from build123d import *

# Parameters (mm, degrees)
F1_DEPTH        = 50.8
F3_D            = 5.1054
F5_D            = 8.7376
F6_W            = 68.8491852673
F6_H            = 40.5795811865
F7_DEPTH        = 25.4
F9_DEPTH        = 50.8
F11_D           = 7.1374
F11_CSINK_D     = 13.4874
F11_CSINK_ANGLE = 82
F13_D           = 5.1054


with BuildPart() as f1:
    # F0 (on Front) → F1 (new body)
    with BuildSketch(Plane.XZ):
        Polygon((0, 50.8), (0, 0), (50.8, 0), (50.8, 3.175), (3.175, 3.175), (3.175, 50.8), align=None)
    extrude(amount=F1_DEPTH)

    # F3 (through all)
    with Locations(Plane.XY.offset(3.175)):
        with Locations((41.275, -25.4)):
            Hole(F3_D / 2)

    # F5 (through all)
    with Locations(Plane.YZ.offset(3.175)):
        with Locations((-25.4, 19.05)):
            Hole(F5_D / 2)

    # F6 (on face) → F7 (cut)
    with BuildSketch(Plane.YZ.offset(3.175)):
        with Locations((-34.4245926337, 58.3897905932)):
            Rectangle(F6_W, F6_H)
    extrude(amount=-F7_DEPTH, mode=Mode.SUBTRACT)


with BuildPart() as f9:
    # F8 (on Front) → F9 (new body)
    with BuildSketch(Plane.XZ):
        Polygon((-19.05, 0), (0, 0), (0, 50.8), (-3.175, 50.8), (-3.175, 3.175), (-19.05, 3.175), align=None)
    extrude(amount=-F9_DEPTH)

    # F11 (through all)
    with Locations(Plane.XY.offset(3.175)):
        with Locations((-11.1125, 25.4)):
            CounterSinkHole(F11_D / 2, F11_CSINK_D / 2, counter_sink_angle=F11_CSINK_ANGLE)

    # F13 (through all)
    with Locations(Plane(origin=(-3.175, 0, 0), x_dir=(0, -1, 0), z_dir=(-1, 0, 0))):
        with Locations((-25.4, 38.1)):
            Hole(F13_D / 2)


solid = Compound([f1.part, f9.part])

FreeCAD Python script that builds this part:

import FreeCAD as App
import Part
import Sketcher
Q = App.Units.Quantity

doc = App.newDocument("Part")
body = doc.addObject("PartDesign::Body", "Body")

# Sketch on XZ plane
sketch1 = body.newObject("Sketcher::SketchObject", "Sketch")
sketch1.AttachmentSupport = (doc.getObject("XZ_Plane"), [""])
sketch1.MapMode = "FlatFace"
sketch1.addGeometry(Part.LineSegment(App.Vector(0, 50.8, 0), App.Vector(0, 0, 0)), False)
sketch1.addGeometry(Part.LineSegment(App.Vector(0, 0, 0), App.Vector(50.8, 0, 0)), False)
sketch1.addGeometry(Part.LineSegment(App.Vector(50.8, 0, 0), App.Vector(50.8, 3.175, 0)), False)
sketch1.addGeometry(Part.LineSegment(App.Vector(50.8, 3.175, 0), App.Vector(3.175, 3.175, 0)), False)
sketch1.addGeometry(Part.LineSegment(App.Vector(3.175, 3.175, 0), App.Vector(3.175, 50.8, 0)), False)
sketch1.addGeometry(Part.LineSegment(App.Vector(3.175, 50.8, 0), App.Vector(0, 50.8, 0)), False)
sketch1.addConstraint(Sketcher.Constraint("Coincident", 0, 2, 1, 1))
sketch1.addConstraint(Sketcher.Constraint("Coincident", 1, 2, 2, 1))
sketch1.addConstraint(Sketcher.Constraint("Coincident", 2, 2, 3, 1))
sketch1.addConstraint(Sketcher.Constraint("Coincident", 3, 2, 4, 1))
sketch1.addConstraint(Sketcher.Constraint("Coincident", 4, 2, 5, 1))
sketch1.addConstraint(Sketcher.Constraint("Coincident", 5, 2, 0, 1))
sketch1.addConstraint(Sketcher.Constraint("Vertical", 0))
sketch1.addConstraint(Sketcher.Constraint("Horizontal", 1))
sketch1.addConstraint(Sketcher.Constraint("Vertical", 2))
sketch1.addConstraint(Sketcher.Constraint("Horizontal", 3))
sketch1.addConstraint(Sketcher.Constraint("Vertical", 4))
sketch1.addConstraint(Sketcher.Constraint("Horizontal", 5))
sketch1.addConstraint(Sketcher.Constraint("Coincident", 0, 2, -1, 1))
sketch1.addConstraint(Sketcher.Constraint("Equal", 1, 0))
sketch1.addConstraint(Sketcher.Constraint("Equal", 5, 2))
sketch1.addConstraint(Sketcher.Constraint("DistanceX", 1, 1, 1, 2, Q("2 in")))
sketch1.addConstraint(Sketcher.Constraint("DistanceX", 3, 2, 3, 1, Q("1.875 in")))
pad1 = body.newObject("PartDesign::Pad", "Pad")
pad1.Profile = sketch1
pad1.Length = Q("2 in")

# Sketch on XY plane
sketch2 = body.newObject("Sketcher::SketchObject", "Sketch001")
sketch2.AttachmentSupport = (doc.getObject("XY_Plane"), [""])
sketch2.MapMode = "FlatFace"
sketch2.AttachmentOffset = App.Placement(App.Vector(0, 0, 0.125 * 25.4), App.Rotation())
sketch2.addGeometry(Part.Circle(App.Vector(41.275, -25.4, 0), App.Vector(0, 0, 1), 2.5527), False)
sketch2.addConstraint(Sketcher.Constraint("Diameter", 0, Q("0.201 in")))
sketch2.addConstraint(Sketcher.Constraint("DistanceY", 0, 3, -1, 1, Q("1 in")))
sketch2.addConstraint(Sketcher.Constraint("DistanceX", -1, 1, 0, 3, Q("1.625 in")))
doc.recompute()
hole = body.newObject("PartDesign::Hole", "Hole")
hole.Profile = sketch2
hole.ThreadType = "None"
hole.Diameter = Q("0.201 in")
hole.DepthType = "ThroughAll"

# Sketch on YZ plane
sketch3 = body.newObject("Sketcher::SketchObject", "Sketch002")
sketch3.AttachmentSupport = (doc.getObject("YZ_Plane"), [""])
sketch3.MapMode = "FlatFace"
sketch3.AttachmentOffset = App.Placement(App.Vector(0, 0, 0.125 * 25.4), App.Rotation())
sketch3.addGeometry(Part.Circle(App.Vector(-25.4, 19.05, 0), App.Vector(0, 0, 1), 4.3688), False)
sketch3.addConstraint(Sketcher.Constraint("Diameter", 0, Q("0.344 in")))
sketch3.addConstraint(Sketcher.Constraint("DistanceX", 0, 3, -1, 1, Q("1 in")))
sketch3.addConstraint(Sketcher.Constraint("DistanceY", -1, 1, 0, 3, Q("0.75 in")))
doc.recompute()
hole2 = body.newObject("PartDesign::Hole", "Hole001")
hole2.Profile = sketch3
hole2.ThreadType = "None"
hole2.Diameter = Q("0.344 in")
hole2.DepthType = "ThroughAll"

# Sketch on YZ plane
sketch4 = body.newObject("Sketcher::SketchObject", "Sketch003")
sketch4.AttachmentSupport = (doc.getObject("YZ_Plane"), [""])
sketch4.MapMode = "FlatFace"
sketch4.AttachmentOffset = App.Placement(App.Vector(0, 0, 0.125 * 25.4), App.Rotation())
sketch4.addGeometry(Part.LineSegment(App.Vector(-68.849185, 78.679581, 0), App.Vector(-68.849185, 38.1, 0)), False)
sketch4.addGeometry(Part.LineSegment(App.Vector(-68.849185, 38.1, 0), App.Vector(0, 38.1, 0)), False)
sketch4.addGeometry(Part.LineSegment(App.Vector(0, 38.1, 0), App.Vector(0, 78.679581, 0)), False)
sketch4.addGeometry(Part.LineSegment(App.Vector(0, 78.679581, 0), App.Vector(-68.849185, 78.679581, 0)), False)
sketch4.addConstraint(Sketcher.Constraint("Coincident", 0, 2, 1, 1))
sketch4.addConstraint(Sketcher.Constraint("Coincident", 1, 2, 2, 1))
sketch4.addConstraint(Sketcher.Constraint("Coincident", 2, 2, 3, 1))
sketch4.addConstraint(Sketcher.Constraint("Coincident", 3, 2, 0, 1))
sketch4.addConstraint(Sketcher.Constraint("Vertical", 0))
sketch4.addConstraint(Sketcher.Constraint("Horizontal", 1))
sketch4.addConstraint(Sketcher.Constraint("Vertical", 2))
sketch4.addConstraint(Sketcher.Constraint("Horizontal", 3))
sketch4.addConstraint(Sketcher.Constraint("PointOnObject", 1, 2, -2))
sketch4.addConstraint(Sketcher.Constraint("DistanceY", -1, 1, 0, 2, Q("1.5 in")))
sketch4.addConstraint(Sketcher.Constraint("DistanceY", 0, 2, 0, 1, 40.579581))
sketch4.addConstraint(Sketcher.Constraint("DistanceX", 1, 1, 1, 2, 68.849185))
pocket1 = body.newObject("PartDesign::Pocket", "Pocket")
pocket1.Profile = sketch4
pocket1.Length = Q("1 in")
body2 = doc.addObject("PartDesign::Body", "Body001")

# Sketch on XZ plane
sketch5 = body2.newObject("Sketcher::SketchObject", "Sketch004")
sketch5.AttachmentSupport = (doc.getObject("XZ_Plane001"), [""])
sketch5.MapMode = "FlatFace"
sketch5.addGeometry(Part.LineSegment(App.Vector(-19.05, 0, 0), App.Vector(0, 0, 0)), False)
sketch5.addGeometry(Part.LineSegment(App.Vector(0, 0, 0), App.Vector(0, 50.8, 0)), False)
sketch5.addGeometry(Part.LineSegment(App.Vector(0, 50.8, 0), App.Vector(-3.175, 50.8, 0)), False)
sketch5.addGeometry(Part.LineSegment(App.Vector(-3.175, 50.8, 0), App.Vector(-3.175, 3.175, 0)), False)
sketch5.addGeometry(Part.LineSegment(App.Vector(-3.175, 3.175, 0), App.Vector(-19.05, 3.175, 0)), False)
sketch5.addGeometry(Part.LineSegment(App.Vector(-19.05, 3.175, 0), App.Vector(-19.05, 0, 0)), False)
sketch5.addConstraint(Sketcher.Constraint("Coincident", 0, 2, 1, 1))
sketch5.addConstraint(Sketcher.Constraint("Coincident", 1, 2, 2, 1))
sketch5.addConstraint(Sketcher.Constraint("Coincident", 2, 2, 3, 1))
sketch5.addConstraint(Sketcher.Constraint("Coincident", 3, 2, 4, 1))
sketch5.addConstraint(Sketcher.Constraint("Coincident", 4, 2, 5, 1))
sketch5.addConstraint(Sketcher.Constraint("Coincident", 5, 2, 0, 1))
sketch5.addConstraint(Sketcher.Constraint("Horizontal", 0))
sketch5.addConstraint(Sketcher.Constraint("Vertical", 1))
sketch5.addConstraint(Sketcher.Constraint("Horizontal", 2))
sketch5.addConstraint(Sketcher.Constraint("Vertical", 3))
sketch5.addConstraint(Sketcher.Constraint("Horizontal", 4))
sketch5.addConstraint(Sketcher.Constraint("Vertical", 5))
sketch5.addConstraint(Sketcher.Constraint("Coincident", 0, 2, -1, 1))
sketch5.addConstraint(Sketcher.Constraint("Equal", 2, 5))
sketch5.addConstraint(Sketcher.Constraint("DistanceY", 1, 1, 1, 2, Q("2 in")))
sketch5.addConstraint(Sketcher.Constraint("DistanceX", 0, 1, 0, 2, Q("0.75 in")))
sketch5.addConstraint(Sketcher.Constraint("DistanceX", 2, 2, 2, 1, Q("0.125 in")))
pad2 = body2.newObject("PartDesign::Pad", "Pad001")
pad2.Profile = sketch5
pad2.Length = Q("2 in")
pad2.Reversed = True

# Sketch on XY plane
sketch6 = body2.newObject("Sketcher::SketchObject", "Sketch005")
sketch6.AttachmentSupport = (doc.getObject("XY_Plane001"), [""])
sketch6.MapMode = "FlatFace"
sketch6.AttachmentOffset = App.Placement(App.Vector(0, 0, 0.125 * 25.4), App.Rotation())
sketch6.addGeometry(Part.Circle(App.Vector(-11.1125, 25.4, 0), App.Vector(0, 0, 1), 3.5687), False)
sketch6.addConstraint(Sketcher.Constraint("Diameter", 0, Q("0.281 in")))
sketch6.addConstraint(Sketcher.Constraint("DistanceY", -1, 1, 0, 3, Q("1 in")))
sketch6.addConstraint(Sketcher.Constraint("DistanceX", 0, 3, -1, 1, Q("0.4375 in")))
doc.recompute()
hole3 = body2.newObject("PartDesign::Hole", "Hole002")
hole3.Profile = sketch6
hole3.ThreadType = "None"
hole3.Diameter = Q("0.281 in")
hole3.DepthType = "ThroughAll"
hole3.HoleCutType = "Countersink"
hole3.HoleCutDiameter = Q("0.531 in")
hole3.HoleCutCountersinkAngle = 82

# Sketch on YZ plane
sketch7 = body2.newObject("Sketcher::SketchObject", "Sketch006")
sketch7.AttachmentSupport = (doc.getObject("YZ_Plane001"), [""])
sketch7.MapMode = "FlatFace"
sketch7.AttachmentOffset = App.Placement(App.Vector(0, 0, -0.125 * 25.4), App.Rotation())
sketch7.addGeometry(Part.Circle(App.Vector(25.4, 38.1, 0), App.Vector(0, 0, 1), 2.5527), False)
sketch7.addConstraint(Sketcher.Constraint("Diameter", 0, Q("0.201 in")))
sketch7.addConstraint(Sketcher.Constraint("DistanceX", -1, 1, 0, 3, Q("1 in")))
sketch7.addConstraint(Sketcher.Constraint("DistanceY", -1, 1, 0, 3, Q("1.5 in")))
doc.recompute()
hole4 = body2.newObject("PartDesign::Hole", "Hole003")
hole4.Profile = sketch7
hole4.ThreadType = "None"
hole4.Diameter = Q("0.201 in")
hole4.DepthType = "ThroughAll"
hole4.Reversed = True

doc.recompute()
